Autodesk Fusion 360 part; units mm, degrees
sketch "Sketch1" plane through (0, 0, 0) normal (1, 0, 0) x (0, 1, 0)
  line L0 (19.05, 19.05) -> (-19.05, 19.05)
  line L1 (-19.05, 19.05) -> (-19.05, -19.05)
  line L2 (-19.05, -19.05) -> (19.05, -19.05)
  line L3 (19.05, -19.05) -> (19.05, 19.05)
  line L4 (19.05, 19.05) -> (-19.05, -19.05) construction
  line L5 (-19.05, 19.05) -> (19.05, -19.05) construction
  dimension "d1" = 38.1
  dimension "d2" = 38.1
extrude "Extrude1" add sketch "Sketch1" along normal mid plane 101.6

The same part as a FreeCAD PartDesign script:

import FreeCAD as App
import Part
import Sketcher
from FreeCAD import Vector
Q = App.Units.Quantity

doc = App.newDocument("Part")
body = doc.addObject("PartDesign::Body", "Body")

sketch1 = doc.addObject("Sketcher::SketchObject", "Sketch")
body.addObject(sketch1)
sketch1.AttachmentSupport = (doc.YZ_Plane, [""])
sketch1.MapMode = "FlatFace"
sketch1.addGeometry([
    Part.LineSegment(Vector(19.05, -19.05, 0), Vector(19.05, 19.05, 0)),
    Part.LineSegment(Vector(19.05, 19.05, 0), Vector(-19.05, 19.05, 0)),
    Part.LineSegment(Vector(-19.05, 19.05, 0), Vector(-19.05, -19.05, 0)),
    Part.LineSegment(Vector(-19.05, -19.05, 0), Vector(19.05, -19.05, 0)),
], False)
sketch1.addConstraint([
    Sketcher.Constraint("Coincident", 0, 2, 1, 1),
    Sketcher.Constraint("Coincident", 1, 2, 2, 1),
    Sketcher.Constraint("Coincident", 2, 2, 3, 1),
    Sketcher.Constraint("Coincident", 3, 2, 0, 1),
    Sketcher.Constraint("Vertical", 0),
    Sketcher.Constraint("Horizontal", 1),
    Sketcher.Constraint("Vertical", 2),
    Sketcher.Constraint("Horizontal", 3),
    Sketcher.Constraint("Symmetric", 0, 2, 2, 2, -1, 1),
    Sketcher.Constraint("Equal", 3, 0),
    Sketcher.Constraint("DistanceX", 1, 2, 1, 1, Q("1.5 in")),
])
pad1 = doc.addObject("PartDesign::Pad", "Pad")
body.addObject(pad1)
pad1.Profile = sketch1
pad1.Length = Q("4 in")
pad1.Midplane = True

doc.recompute()
